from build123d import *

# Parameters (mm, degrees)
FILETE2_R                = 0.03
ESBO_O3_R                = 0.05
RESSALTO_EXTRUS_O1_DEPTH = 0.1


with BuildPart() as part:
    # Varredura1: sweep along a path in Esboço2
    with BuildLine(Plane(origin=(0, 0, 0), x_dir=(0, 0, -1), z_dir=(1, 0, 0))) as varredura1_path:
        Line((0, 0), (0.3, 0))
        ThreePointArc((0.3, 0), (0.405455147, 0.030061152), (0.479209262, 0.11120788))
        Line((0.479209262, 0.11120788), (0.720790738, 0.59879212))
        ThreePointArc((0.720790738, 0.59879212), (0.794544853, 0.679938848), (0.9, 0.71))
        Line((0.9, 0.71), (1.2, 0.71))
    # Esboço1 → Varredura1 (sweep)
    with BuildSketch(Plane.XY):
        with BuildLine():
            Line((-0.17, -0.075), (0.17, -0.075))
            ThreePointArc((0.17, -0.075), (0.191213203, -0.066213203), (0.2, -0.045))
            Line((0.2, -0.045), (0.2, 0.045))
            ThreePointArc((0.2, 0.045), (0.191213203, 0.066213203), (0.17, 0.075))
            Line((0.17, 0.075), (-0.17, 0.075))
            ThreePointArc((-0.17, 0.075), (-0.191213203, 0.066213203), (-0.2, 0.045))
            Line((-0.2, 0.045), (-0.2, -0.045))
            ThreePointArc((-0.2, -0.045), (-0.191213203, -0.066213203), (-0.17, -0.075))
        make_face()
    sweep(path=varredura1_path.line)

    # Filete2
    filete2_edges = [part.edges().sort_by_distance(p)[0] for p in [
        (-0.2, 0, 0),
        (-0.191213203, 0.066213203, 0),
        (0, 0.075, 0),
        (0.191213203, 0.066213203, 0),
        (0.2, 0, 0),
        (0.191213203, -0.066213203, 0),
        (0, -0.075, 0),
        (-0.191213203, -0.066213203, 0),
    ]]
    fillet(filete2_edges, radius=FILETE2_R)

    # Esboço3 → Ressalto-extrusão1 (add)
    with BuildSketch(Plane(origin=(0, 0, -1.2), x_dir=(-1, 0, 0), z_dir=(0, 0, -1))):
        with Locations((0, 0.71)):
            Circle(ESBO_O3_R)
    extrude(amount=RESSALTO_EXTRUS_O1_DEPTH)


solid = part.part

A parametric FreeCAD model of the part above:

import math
import FreeCAD as App
import Part
import Sketcher


def edges_at(feature, points):
    """Names of the edges that pass closest to the given points."""
    edges = feature.Shape.Edges
    near = lambda p: min(range(len(edges)), key=lambda i: edges[i].distToShape(Part.Vertex(*p))[0])
    return sorted({f"Edge{near(p) + 1}" for p in points})

doc = App.newDocument("Part")
params = doc.addObject("Spreadsheet::Sheet", "Params")
for row, (alias, value) in enumerate([
    ("sketch1_radius", "0.03 mm"),
    ("sketch1_width", "0.34 mm"),
    ("sketch1_height", "0.09 mm"),
    ("sketch2_radius", "0.2 mm"),
    ("sketch2_height", "0.3 mm"),
    ("fillet_radius", "0.03 mm"),
    ("sketch3_diameter", "0.1 mm"),
    ("pad1_length", "0.1 mm"),
], start=1):
    params.set(f"A{row}", alias)
    params.set(f"B{row}", "=" + value)
    params.setAlias(f"B{row}", alias)

body = doc.addObject("PartDesign::Body", "Body")

sketch1 = body.newObject("Sketcher::SketchObject", "Sketch")
sketch1.AttachmentSupport = (doc.getObject("XY_Plane"), [""])
sketch1.MapMode = "FlatFace"
sketch1.addGeometry([
    Part.LineSegment(App.Vector(-0.17, -0.075, 0), App.Vector(0.17, -0.075, 0)),
    Part.ArcOfCircle(Part.Circle(App.Vector(0.17, -0.045, 0), App.Vector(0, 0, 1), 0.03), math.radians(-89.999998), math.radians(-0.000002)),
    Part.LineSegment(App.Vector(0.2, -0.045, 0), App.Vector(0.2, 0.045, 0)),
    Part.ArcOfCircle(Part.Circle(App.Vector(0.17, 0.045, 0), App.Vector(0, 0, 1), 0.03), math.radians(0.000002), math.radians(89.999998)),
    Part.LineSegment(App.Vector(0.17, 0.075, 0), App.Vector(-0.17, 0.075, 0)),
    Part.ArcOfCircle(Part.Circle(App.Vector(-0.17, 0.045, 0), App.Vector(0, 0, 1), 0.03), math.radians(90.000002), math.radians(179.999998)),
    Part.LineSegment(App.Vector(-0.2, 0.045, 0), App.Vector(-0.2, -0.045, 0)),
    Part.ArcOfCircle(Part.Circle(App.Vector(-0.17, -0.045, 0), App.Vector(0, 0, 1), 0.03), math.radians(-179.999998), math.radians(-90.000002)),
], False)
sketch1.addConstraint([
    Sketcher.Constraint("Tangent", 0, 2, 1, 1),
    Sketcher.Constraint("Tangent", 1, 2, 2, 1),
    Sketcher.Constraint("Tangent", 2, 2, 3, 1),
    Sketcher.Constraint("Tangent", 3, 2, 4, 1),
    Sketcher.Constraint("Tangent", 4, 2, 5, 1),
    Sketcher.Constraint("Tangent", 5, 2, 6, 1),
    Sketcher.Constraint("Tangent", 6, 2, 7, 1),
    Sketcher.Constraint("Tangent", 7, 2, 0, 1),
    Sketcher.Constraint("Horizontal", 0),
    Sketcher.Constraint("Vertical", 2),
    Sketcher.Constraint("Horizontal", 4),
    Sketcher.Constraint("Vertical", 6),
    Sketcher.Constraint("Equal", 1, 3),
    Sketcher.Constraint("Equal", 3, 5),
    Sketcher.Constraint("Equal", 5, 7),
    Sketcher.Constraint("Symmetric", 1, 3, 5, 3, -1, 1),
    Sketcher.Constraint("Radius", 1, 0.03),
    Sketcher.Constraint("DistanceX", 0, 1, 0, 2, 0.34),
    Sketcher.Constraint("DistanceY", 2, 1, 2, 2, 0.09),
])
sketch1.setExpression("Constraints[16]", "Params.sketch1_radius")
sketch1.setExpression("Constraints[17]", "Params.sketch1_width")
sketch1.setExpression("Constraints[18]", "Params.sketch1_height")

sketch2 = body.newObject("Sketcher::SketchObject", "Sketch001")
sketch2.AttachmentSupport = (doc.getObject("YZ_Plane"), [""])
sketch2.MapMode = "FlatFace"
sketch2.addGeometry([
    Part.LineSegment(App.Vector(0, 0, 0), App.Vector(0, -0.3, 0)),
    Part.ArcOfCircle(Part.Circle(App.Vector(0.2, -0.3, 0), App.Vector(0, 0, 1), 0.2), math.radians(180), math.radians(243.643143)),
    Part.LineSegment(App.Vector(0.111208, -0.479209, 0), App.Vector(0.598792, -0.720791, 0)),
    Part.ArcOfCircle(Part.Circle(App.Vector(0.51, -0.9, 0), App.Vector(0, 0, 1), 0.2), math.radians(0), math.radians(63.643143)),
    Part.LineSegment(App.Vector(0.71, -0.9, 0), App.Vector(0.71, -1.2, 0)),
], False)
sketch2.addConstraint([
    Sketcher.Constraint("Tangent", 0, 2, 1, 1),
    Sketcher.Constraint("Tangent", 1, 2, 2, 1),
    Sketcher.Constraint("Tangent", 2, 2, 3, 2),
    Sketcher.Constraint("Tangent", 3, 1, 4, 1),
    Sketcher.Constraint("Vertical", 0),
    Sketcher.Constraint("Vertical", 4),
    Sketcher.Constraint("Coincident", 0, 1, -1, 1),
    Sketcher.Constraint("Equal", 1, 3),
    Sketcher.Constraint("Equal", 0, 4),
    Sketcher.Constraint("Radius", 1, 0.2),
    Sketcher.Constraint("DistanceY", 0, 2, 0, 1, 0.3),
    Sketcher.Constraint("DistanceY", 3, 3, -1, 1, 0.9),
    Sketcher.Constraint("DistanceX", -1, 1, 3, 3, 0.51),
])
sketch2.setExpression("Constraints[9]", "Params.sketch2_radius")
sketch2.setExpression("Constraints[10]", "Params.sketch2_height")
doc.recompute()

additivepipe = body.newObject("PartDesign::AdditivePipe", "AdditivePipe")
additivepipe.Profile = sketch1
additivepipe.Spine = (sketch2, ["Edge1", "Edge2", "Edge3", "Edge4", "Edge5"])
doc.recompute()

fillet = body.newObject("PartDesign::Fillet", "Fillet")
fillet.Base = (additivepipe, edges_at(additivepipe, [
    (-0.2, 0, 0),
    (-0.191, 0.066, 0),
    (0, 0.075, 0),
    (0.191, 0.066, 0),
    (0.2, 0, 0),
    (0.191, -0.066, 0),
    (0, -0.075, 0),
    (-0.191, -0.066, 0),
]))
fillet.setExpression("Radius", "Params.fillet_radius")

sketch3 = body.newObject("Sketcher::SketchObject", "Sketch002")
sketch3.AttachmentSupport = (doc.getObject("XY_Plane"), [""])
sketch3.MapMode = "FlatFace"
sketch3.AttachmentOffset = App.Placement(App.Vector(0, 0, -1.2), App.Rotation())
sketch3.addGeometry(Part.Circle(App.Vector(0, 0.71, 0), App.Vector(0, 0, 1), 0.05), False)
sketch3.addConstraint([
    Sketcher.Constraint("PointOnObject", 0, 3, -2),
    Sketcher.Constraint("Diameter", 0, 0.1),
    Sketcher.Constraint("DistanceY", -1, 1, 0, 3, 0.71),
])
sketch3.setExpression("Constraints[1]", "Params.sketch3_diameter")
pad1 = body.newObject("PartDesign::Pad", "Pad")
pad1.Profile = sketch3
pad1.setExpression("Length", "Params.pad1_length")
pad1.Reversed = True

doc.recompute()
